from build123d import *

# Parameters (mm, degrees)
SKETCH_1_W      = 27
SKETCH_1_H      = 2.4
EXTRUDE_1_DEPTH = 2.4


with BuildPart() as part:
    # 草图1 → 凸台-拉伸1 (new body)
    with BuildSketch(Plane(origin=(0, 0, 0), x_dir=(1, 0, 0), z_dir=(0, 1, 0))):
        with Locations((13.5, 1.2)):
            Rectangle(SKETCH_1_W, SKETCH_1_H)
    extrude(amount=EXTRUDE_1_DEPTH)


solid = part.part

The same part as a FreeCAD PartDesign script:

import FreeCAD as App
import Part
import Sketcher
from FreeCAD import Vector


def add_polygon(sketch, points):
    """Adds a closed chain of lines whose ends are joined by coincident constraints."""
    first, n = sketch.GeometryCount, len(points)
    for a, b in zip(points, points[1:] + points[:1]):
        sketch.addGeometry(Part.LineSegment(App.Vector(*a, 0), App.Vector(*b, 0)), False)
    for i in range(n):
        sketch.addConstraint(Sketcher.Constraint("Coincident", first + i, 2, first + (i + 1) % n, 1))

doc = App.newDocument("Part")
params = doc.addObject("Spreadsheet::Sheet", "Params")
for row, (alias, value) in enumerate([
    ("sketch1_width", "27 mm"),
    ("sketch1_height", "2.4 mm"),
    ("pad1_length", "2.4 mm"),
], start=1):
    params.set(f"A{row}", alias)
    params.set(f"B{row}", "=" + value)
    params.setAlias(f"B{row}", alias)

body = doc.addObject("PartDesign::Body", "Body")

# Sketch on XZ plane
sketch1 = body.newObject("Sketcher::SketchObject", "Sketch")
sketch1.AttachmentSupport = (doc.getObject("XZ_Plane"), [""])
sketch1.MapMode = "FlatFace"
add_polygon(sketch1, [(0, -2.4), (0, 0), (27, 0), (27, -2.4)])  # lines 0-3
sketch1.addConstraint(Sketcher.Constraint("Vertical", 0))
sketch1.addConstraint(Sketcher.Constraint("Horizontal", 1))
sketch1.addConstraint(Sketcher.Constraint("Vertical", 2))
sketch1.addConstraint(Sketcher.Constraint("Horizontal", 3))
sketch1.addConstraint(Sketcher.Constraint("Coincident", 0, 2, -1, 1))
sketch1.addConstraint(Sketcher.Constraint("DistanceX", 1, 1, 1, 2, 27.0))
sketch1.addConstraint(Sketcher.Constraint("DistanceY", 0, 1, 0, 2, 2.4))
sketch1.setExpression("Constraints[9]", "Params.sketch1_width")
sketch1.setExpression("Constraints[10]", "Params.sketch1_height")
pad1 = body.newObject("PartDesign::Pad", "Pad")
pad1.Profile = sketch1
pad1.setExpression("Length", "Params.pad1_length")
pad1.Reversed = True

doc.recompute()
